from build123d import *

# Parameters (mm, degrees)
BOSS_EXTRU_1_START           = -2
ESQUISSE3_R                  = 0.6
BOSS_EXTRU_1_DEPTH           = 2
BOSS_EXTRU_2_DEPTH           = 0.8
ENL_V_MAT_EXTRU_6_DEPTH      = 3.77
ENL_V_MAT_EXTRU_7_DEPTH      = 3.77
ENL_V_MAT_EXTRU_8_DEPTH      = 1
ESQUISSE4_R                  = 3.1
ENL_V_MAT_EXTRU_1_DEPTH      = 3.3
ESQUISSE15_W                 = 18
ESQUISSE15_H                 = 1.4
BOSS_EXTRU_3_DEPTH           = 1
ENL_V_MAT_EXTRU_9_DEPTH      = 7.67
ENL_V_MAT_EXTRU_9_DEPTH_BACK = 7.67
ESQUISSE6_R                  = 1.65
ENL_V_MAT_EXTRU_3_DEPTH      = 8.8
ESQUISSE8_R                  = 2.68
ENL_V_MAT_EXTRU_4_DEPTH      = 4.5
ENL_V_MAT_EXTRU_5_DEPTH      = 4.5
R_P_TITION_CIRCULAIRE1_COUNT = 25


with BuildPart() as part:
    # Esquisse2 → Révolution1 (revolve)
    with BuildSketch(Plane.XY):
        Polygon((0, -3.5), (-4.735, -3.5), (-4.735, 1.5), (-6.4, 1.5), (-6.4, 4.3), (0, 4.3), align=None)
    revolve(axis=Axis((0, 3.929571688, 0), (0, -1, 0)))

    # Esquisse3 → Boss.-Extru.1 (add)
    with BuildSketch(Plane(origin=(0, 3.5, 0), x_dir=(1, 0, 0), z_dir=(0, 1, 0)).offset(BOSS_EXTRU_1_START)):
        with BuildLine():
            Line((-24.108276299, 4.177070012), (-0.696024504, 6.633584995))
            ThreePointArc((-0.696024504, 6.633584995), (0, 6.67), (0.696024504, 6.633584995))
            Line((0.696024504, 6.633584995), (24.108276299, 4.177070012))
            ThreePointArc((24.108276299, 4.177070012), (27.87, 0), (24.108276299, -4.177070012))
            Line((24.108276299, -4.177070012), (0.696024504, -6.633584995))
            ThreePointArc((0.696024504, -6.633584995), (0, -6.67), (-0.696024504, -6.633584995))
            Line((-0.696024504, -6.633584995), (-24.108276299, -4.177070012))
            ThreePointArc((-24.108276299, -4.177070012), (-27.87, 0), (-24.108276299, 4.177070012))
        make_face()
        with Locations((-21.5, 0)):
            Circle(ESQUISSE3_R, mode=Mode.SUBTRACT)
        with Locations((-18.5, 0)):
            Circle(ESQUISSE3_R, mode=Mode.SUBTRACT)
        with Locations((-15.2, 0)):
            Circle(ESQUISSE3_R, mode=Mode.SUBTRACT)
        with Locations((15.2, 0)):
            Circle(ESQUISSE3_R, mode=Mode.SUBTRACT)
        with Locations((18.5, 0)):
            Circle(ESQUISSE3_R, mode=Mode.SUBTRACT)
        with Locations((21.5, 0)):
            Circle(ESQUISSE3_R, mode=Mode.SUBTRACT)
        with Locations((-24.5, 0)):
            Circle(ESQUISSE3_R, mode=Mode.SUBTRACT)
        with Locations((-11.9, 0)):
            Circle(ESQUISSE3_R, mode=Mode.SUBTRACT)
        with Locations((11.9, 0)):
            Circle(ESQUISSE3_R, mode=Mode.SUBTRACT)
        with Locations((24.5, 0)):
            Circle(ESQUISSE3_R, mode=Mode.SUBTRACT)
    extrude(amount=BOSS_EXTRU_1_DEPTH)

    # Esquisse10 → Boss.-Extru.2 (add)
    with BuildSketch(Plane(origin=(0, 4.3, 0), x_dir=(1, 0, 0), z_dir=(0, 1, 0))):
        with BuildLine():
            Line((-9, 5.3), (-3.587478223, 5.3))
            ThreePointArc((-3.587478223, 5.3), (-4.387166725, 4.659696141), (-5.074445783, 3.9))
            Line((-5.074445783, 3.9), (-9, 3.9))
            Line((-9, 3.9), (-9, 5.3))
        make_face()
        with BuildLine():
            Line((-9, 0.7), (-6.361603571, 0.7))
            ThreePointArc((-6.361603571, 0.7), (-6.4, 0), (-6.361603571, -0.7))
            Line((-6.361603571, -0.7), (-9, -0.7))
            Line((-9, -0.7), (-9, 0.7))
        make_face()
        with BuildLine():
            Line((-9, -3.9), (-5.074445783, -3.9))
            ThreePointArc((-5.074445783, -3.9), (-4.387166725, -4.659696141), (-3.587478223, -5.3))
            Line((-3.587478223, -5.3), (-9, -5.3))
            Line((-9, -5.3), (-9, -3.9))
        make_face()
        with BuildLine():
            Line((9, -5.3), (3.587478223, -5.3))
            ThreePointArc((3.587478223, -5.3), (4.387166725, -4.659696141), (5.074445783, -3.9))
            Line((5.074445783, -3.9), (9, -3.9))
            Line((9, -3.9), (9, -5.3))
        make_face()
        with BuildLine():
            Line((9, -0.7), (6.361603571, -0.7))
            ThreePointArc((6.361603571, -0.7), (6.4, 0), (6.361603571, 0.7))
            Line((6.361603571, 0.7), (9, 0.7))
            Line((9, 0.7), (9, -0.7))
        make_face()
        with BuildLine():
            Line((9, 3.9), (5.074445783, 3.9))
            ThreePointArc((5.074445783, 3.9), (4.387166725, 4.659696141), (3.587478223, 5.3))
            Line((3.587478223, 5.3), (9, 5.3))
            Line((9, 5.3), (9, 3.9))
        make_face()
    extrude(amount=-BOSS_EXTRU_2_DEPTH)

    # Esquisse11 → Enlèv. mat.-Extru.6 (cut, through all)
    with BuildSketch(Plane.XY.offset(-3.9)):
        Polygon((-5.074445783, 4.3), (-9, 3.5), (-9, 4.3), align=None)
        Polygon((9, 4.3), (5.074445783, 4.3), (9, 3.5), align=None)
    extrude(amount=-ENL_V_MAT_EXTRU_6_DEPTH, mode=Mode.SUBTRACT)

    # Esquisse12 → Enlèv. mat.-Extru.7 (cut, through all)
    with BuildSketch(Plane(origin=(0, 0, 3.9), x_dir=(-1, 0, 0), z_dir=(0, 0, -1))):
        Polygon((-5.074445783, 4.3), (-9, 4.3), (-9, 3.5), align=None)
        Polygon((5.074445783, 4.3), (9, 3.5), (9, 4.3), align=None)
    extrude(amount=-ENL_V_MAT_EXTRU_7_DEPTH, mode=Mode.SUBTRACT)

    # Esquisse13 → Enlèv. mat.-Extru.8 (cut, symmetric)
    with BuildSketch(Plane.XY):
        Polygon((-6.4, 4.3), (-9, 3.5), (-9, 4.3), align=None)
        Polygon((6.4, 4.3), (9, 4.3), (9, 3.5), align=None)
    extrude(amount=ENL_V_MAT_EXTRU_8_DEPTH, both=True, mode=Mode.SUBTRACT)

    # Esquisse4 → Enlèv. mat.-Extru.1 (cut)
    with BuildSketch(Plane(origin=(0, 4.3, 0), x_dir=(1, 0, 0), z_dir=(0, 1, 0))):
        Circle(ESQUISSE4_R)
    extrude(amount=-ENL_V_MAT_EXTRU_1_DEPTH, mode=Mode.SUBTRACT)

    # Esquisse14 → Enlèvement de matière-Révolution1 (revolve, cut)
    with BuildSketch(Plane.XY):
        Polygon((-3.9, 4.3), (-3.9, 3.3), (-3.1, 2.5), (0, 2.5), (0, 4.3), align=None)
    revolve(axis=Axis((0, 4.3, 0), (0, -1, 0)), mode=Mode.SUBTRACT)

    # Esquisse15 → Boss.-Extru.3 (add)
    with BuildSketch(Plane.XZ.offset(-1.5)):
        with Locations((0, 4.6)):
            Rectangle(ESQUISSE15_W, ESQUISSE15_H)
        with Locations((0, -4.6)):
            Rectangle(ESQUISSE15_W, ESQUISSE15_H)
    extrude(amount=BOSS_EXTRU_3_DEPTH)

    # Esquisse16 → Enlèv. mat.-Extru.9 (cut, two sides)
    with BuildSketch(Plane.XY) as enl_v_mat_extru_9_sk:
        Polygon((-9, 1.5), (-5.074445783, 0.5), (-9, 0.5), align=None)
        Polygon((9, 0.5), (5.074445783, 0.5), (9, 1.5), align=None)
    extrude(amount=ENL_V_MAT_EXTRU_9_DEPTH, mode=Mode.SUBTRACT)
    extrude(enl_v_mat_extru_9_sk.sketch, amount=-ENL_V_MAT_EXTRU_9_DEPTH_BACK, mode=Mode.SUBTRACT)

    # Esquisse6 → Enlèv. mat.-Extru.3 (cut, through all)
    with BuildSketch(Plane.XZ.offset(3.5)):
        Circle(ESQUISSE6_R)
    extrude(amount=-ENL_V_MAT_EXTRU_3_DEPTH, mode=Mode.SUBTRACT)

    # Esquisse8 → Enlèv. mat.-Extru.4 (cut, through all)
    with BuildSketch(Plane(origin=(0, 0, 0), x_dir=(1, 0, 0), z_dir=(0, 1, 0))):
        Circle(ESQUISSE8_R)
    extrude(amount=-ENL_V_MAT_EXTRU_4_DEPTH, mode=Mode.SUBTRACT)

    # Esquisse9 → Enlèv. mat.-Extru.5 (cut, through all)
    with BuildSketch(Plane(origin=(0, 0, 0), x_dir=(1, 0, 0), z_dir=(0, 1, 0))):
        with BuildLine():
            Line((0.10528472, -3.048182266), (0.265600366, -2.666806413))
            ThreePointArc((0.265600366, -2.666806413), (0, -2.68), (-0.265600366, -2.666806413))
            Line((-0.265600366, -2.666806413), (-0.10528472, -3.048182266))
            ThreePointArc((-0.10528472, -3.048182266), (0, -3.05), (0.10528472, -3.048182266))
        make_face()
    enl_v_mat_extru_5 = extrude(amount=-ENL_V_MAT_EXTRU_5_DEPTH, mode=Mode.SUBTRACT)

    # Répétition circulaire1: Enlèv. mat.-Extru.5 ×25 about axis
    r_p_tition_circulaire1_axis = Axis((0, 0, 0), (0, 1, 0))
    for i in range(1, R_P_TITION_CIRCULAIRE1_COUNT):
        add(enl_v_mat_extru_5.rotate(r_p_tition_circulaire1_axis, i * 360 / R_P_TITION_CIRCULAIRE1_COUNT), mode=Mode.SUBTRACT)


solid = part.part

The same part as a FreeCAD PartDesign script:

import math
import FreeCAD as App
import Part
import Sketcher
Q = App.Units.Quantity

doc = App.newDocument("Part")
body = doc.addObject("PartDesign::Body", "Body")

sketch1 = doc.addObject("Sketcher::SketchObject", "Sketch")
body.addObject(sketch1)
sketch1.AttachmentSupport = (doc.XY_Plane, [""])
sketch1.MapMode = "FlatFace"
sketch1.addGeometry([
    Part.LineSegment(App.Vector(-4.7, -3.5, 0), App.Vector(0, -3.5, 0)),
    Part.LineSegment(App.Vector(0, -3.5, 0), App.Vector(0, 4.3, 0)),
    Part.LineSegment(App.Vector(0, 4.3, 0), App.Vector(-6.4, 4.3, 0)),
    Part.LineSegment(App.Vector(-6.4, 4.3, 0), App.Vector(-6.4, 1.5, 0)),
    Part.LineSegment(App.Vector(-6.4, 1.5, 0), App.Vector(-4.7, 1.5, 0)),
    Part.LineSegment(App.Vector(-4.7, 1.5, 0), App.Vector(-4.7, -3.5, 0)),
], False)
sketch1.addConstraint([
    Sketcher.Constraint("Coincident", 0, 2, 1, 1),
    Sketcher.Constraint("Coincident", 1, 2, 2, 1),
    Sketcher.Constraint("Coincident", 2, 2, 3, 1),
    Sketcher.Constraint("Coincident", 3, 2, 4, 1),
    Sketcher.Constraint("Coincident", 4, 2, 5, 1),
    Sketcher.Constraint("Coincident", 5, 2, 0, 1),
    Sketcher.Constraint("Horizontal", 0),
    Sketcher.Constraint("Vertical", 1),
    Sketcher.Constraint("Horizontal", 2),
    Sketcher.Constraint("Vertical", 3),
    Sketcher.Constraint("Horizontal", 4),
    Sketcher.Constraint("Vertical", 5),
    Sketcher.Constraint("PointOnObject", 0, 2, -2),
    Sketcher.Constraint("DistanceY", 5, 2, 5, 1, 5.0),
    Sketcher.Constraint("DistanceX", 2, 2, 2, 1, 6.4),
    Sketcher.Constraint("DistanceY", 1, 1, 1, 2, 7.8),
    Sketcher.Constraint("DistanceY", 0, 2, -1, 1, 3.5),
    Sketcher.Constraint("DistanceX", 0, 1, 0, 2, 4.735),
])
revolution = doc.addObject("PartDesign::Revolution", "Revolution")
body.addObject(revolution)
revolution.Profile = sketch1
revolution.ReferenceAxis = (sketch1, ["V_Axis"])
revolution.Angle = 360

sketch2 = doc.addObject("Sketcher::SketchObject", "Sketch001")
body.addObject(sketch2)
sketch2.AttachmentSupport = (doc.XZ_Plane, [""])
sketch2.MapMode = "FlatFace"
sketch2.AttachmentOffset = App.Placement(App.Vector(0, 0, -1.5), App.Rotation())
sketch2.addGeometry([
    Part.LineSegment(App.Vector(-0.7, -6.6, 0), App.Vector(-24.1, -4.2, 0)),
    Part.ArcOfCircle(Part.Circle(App.Vector(-23.7, 0, 0), App.Vector(0, 0, 1), 4.2), math.radians(96), math.radians(264)),
    Part.LineSegment(App.Vector(-24.1, 4.2, 0), App.Vector(-0.7, 6.6, 0)),
    Part.ArcOfCircle(Part.Circle(App.Vector(0, 0, 0), App.Vector(0, 0, 1), 6.7), math.radians(84.01), math.radians(95.99)),
    Part.LineSegment(App.Vector(0.7, 6.6, 0), App.Vector(24.1, 4.2, 0)),
    Part.ArcOfCircle(Part.Circle(App.Vector(23.7, 0, 0), App.Vector(0, 0, 1), 4.2), math.radians(-84), math.radians(84)),
    Part.LineSegment(App.Vector(24.1, -4.2, 0), App.Vector(0.7, -6.6, 0)),
    Part.ArcOfCircle(Part.Circle(App.Vector(0, 0, 0), App.Vector(0, 0, 1), 6.7), math.radians(-95.99), math.radians(-84.01)),
    Part.Circle(App.Vector(24.5, 0, 0), App.Vector(0, 0, 1), 0.6),
    Part.Circle(App.Vector(21.5, 0, 0), App.Vector(0, 0, 1), 0.6),
    Part.Circle(App.Vector(18.5, 0, 0), App.Vector(0, 0, 1), 0.6),
    Part.Circle(App.Vector(15.2, 0, 0), App.Vector(0, 0, 1), 0.6),
    Part.Circle(App.Vector(11.9, 0, 0), App.Vector(0, 0, 1), 0.6),
    Part.Circle(App.Vector(-11.9, 0, 0), App.Vector(0, 0, 1), 0.6),
    Part.Circle(App.Vector(-15.2, 0, 0), App.Vector(0, 0, 1), 0.6),
    Part.Circle(App.Vector(-18.5, 0, 0), App.Vector(0, 0, 1), 0.6),
    Part.Circle(App.Vector(-21.5, 0, 0), App.Vector(0, 0, 1), 0.6),
    Part.Circle(App.Vector(-24.5, 0, 0), App.Vector(0, 0, 1), 0.6),
], False)
sketch2.addConstraint([
    Sketcher.Constraint("Tangent", 0, 2, 1, 2),
    Sketcher.Constraint("Tangent", 1, 1, 2, 1),
    Sketcher.Constraint("Tangent", 2, 2, 3, 2),
    Sketcher.Constraint("Tangent", 3, 1, 4, 1),
    Sketcher.Constraint("Tangent", 4, 2, 5, 2),
    Sketcher.Constraint("Tangent", 5, 1, 6, 1),
    Sketcher.Constraint("Tangent", 6, 2, 7, 2),
    Sketcher.Constraint("Tangent", 7, 1, 0, 1),
    Sketcher.Constraint("Coincident", 3, 3, -1, 1),
    Sketcher.Constraint("Coincident", 7, 3, -1, 1),
    Sketcher.Constraint("Equal", 1, 5),
    Sketcher.Constraint("Equal", 3, 7),
    Sketcher.Constraint("Equal", 8, 9),
    Sketcher.Constraint("Equal", 9, 10),
    Sketcher.Constraint("Equal", 10, 11),
    Sketcher.Constraint("Equal", 11, 12),
    Sketcher.Constraint("Equal", 12, 13),
    Sketcher.Constraint("Equal", 13, 14),
    Sketcher.Constraint("Equal", 14, 15),
    Sketcher.Constraint("Equal", 15, 16),
    Sketcher.Constraint("Equal", 16, 17),
    Sketcher.Constraint("Symmetric", 1, 3, 5, 3, -1, 1),
    Sketcher.Constraint("Symmetric", 12, 3, 13, 3, -1, 1),
    Sketcher.Constraint("Symmetric", 11, 3, 14, 3, -1, 1),
    Sketcher.Constraint("Symmetric", 10, 3, 15, 3, -1, 1),
    Sketcher.Constraint("Symmetric", 9, 3, 16, 3, -1, 1),
    Sketcher.Constraint("Symmetric", 8, 3, 17, 3, -1, 1),
    Sketcher.Constraint("PointOnObject", 1, 3, -1),
    Sketcher.Constraint("PointOnObject", 8, 3, -1),
    Sketcher.Constraint("PointOnObject", 9, 3, -1),
    Sketcher.Constraint("PointOnObject", 10, 3, -1),
    Sketcher.Constraint("PointOnObject", 11, 3, -1),
    Sketcher.Constraint("PointOnObject", 12, 3, -1),
    Sketcher.Constraint("Diameter", 8, 1.2),
    Sketcher.Constraint("Radius", 1, 4.2),
    Sketcher.Constraint("Radius", 3, 6.67),
    Sketcher.Constraint("DistanceX", 9, 3, 8, 3, 3.0),
    Sketcher.Constraint("DistanceX", 10, 3, 9, 3, 3.0),
    Sketcher.Constraint("DistanceX", -1, 1, 8, 3, 24.5),
    Sketcher.Constraint("DistanceX", -1, 1, 11, 3, 15.2),
    Sketcher.Constraint("DistanceX", -1, 1, 12, 3, 11.9),
    Sketcher.Constraint("DistanceX", 1, 3, -1, 1, 23.67),
])
pad1 = doc.addObject("PartDesign::Pad", "Pad")
body.addObject(pad1)
pad1.Profile = sketch2
pad1.Length = 2
pad1.Reversed = True

sketch3 = doc.addObject("Sketcher::SketchObject", "Sketch002")
body.addObject(sketch3)
sketch3.AttachmentSupport = (doc.XZ_Plane, [""])
sketch3.MapMode = "FlatFace"
sketch3.AttachmentOffset = App.Placement(App.Vector(0, 0, -4.3), App.Rotation())
sketch3.addGeometry([
    Part.LineSegment(App.Vector(-3.6, -5.3, 0), App.Vector(-9, -5.3, 0)),
    Part.LineSegment(App.Vector(-9, -5.3, 0), App.Vector(-9, -3.9, 0)),
    Part.LineSegment(App.Vector(-9, -3.9, 0), App.Vector(-5.1, -3.9, 0)),
    Part.ArcOfCircle(Part.Circle(App.Vector(0, 0, 0), App.Vector(0, 0, 1), 6.4), math.radians(-142.46), math.radians(-124.09)),
    Part.LineSegment(App.Vector(-6.4, -0.7, 0), App.Vector(-9, -0.7, 0)),
    Part.LineSegment(App.Vector(-9, -0.7, 0), App.Vector(-9, 0.7, 0)),
    Part.LineSegment(App.Vector(-9, 0.7, 0), App.Vector(-6.4, 0.7, 0)),
    Part.ArcOfCircle(Part.Circle(App.Vector(0, 0, 0), App.Vector(0, 0, 1), 6.4), math.radians(173.72), math.radians(186.28)),
    Part.LineSegment(App.Vector(-5.1, 3.9, 0), App.Vector(-9, 3.9, 0)),
    Part.LineSegment(App.Vector(-9, 3.9, 0), App.Vector(-9, 5.3, 0)),
    Part.LineSegment(App.Vector(-9, 5.3, 0), App.Vector(-3.6, 5.3, 0)),
    Part.ArcOfCircle(Part.Circle(App.Vector(0, 0, 0), App.Vector(0, 0, 1), 6.4), math.radians(124.09), math.radians(142.46)),
    Part.LineSegment(App.Vector(3.6, 5.3, 0), App.Vector(9, 5.3, 0)),
    Part.LineSegment(App.Vector(9, 5.3, 0), App.Vector(9, 3.9, 0)),
    Part.LineSegment(App.Vector(9, 3.9, 0), App.Vector(5.1, 3.9, 0)),
    Part.ArcOfCircle(Part.Circle(App.Vector(0, 0, 0), App.Vector(0, 0, 1), 6.4), math.radians(37.54), math.radians(55.91)),
    Part.LineSegment(App.Vector(6.4, 0.7, 0), App.Vector(9, 0.7, 0)),
    Part.LineSegment(App.Vector(9, 0.7, 0), App.Vector(9, -0.7, 0)),
    Part.LineSegment(App.Vector(9, -0.7, 0), App.Vector(6.4, -0.7, 0)),
    Part.ArcOfCircle(Part.Circle(App.Vector(0, 0, 0), App.Vector(0, 0, 1), 6.4), math.radians(-6.28), math.radians(6.28)),
    Part.LineSegment(App.Vector(5.1, -3.9, 0), App.Vector(9, -3.9, 0)),
    Part.LineSegment(App.Vector(9, -3.9, 0), App.Vector(9, -5.3, 0)),
    Part.LineSegment(App.Vector(9, -5.3, 0), App.Vector(3.6, -5.3, 0)),
    Part.ArcOfCircle(Part.Circle(App.Vector(0, 0, 0), App.Vector(0, 0, 1), 6.4), math.radians(-55.91), math.radians(-37.54)),
], False)
sketch3.addConstraint([
    Sketcher.Constraint("Coincident", 0, 2, 1, 1),
    Sketcher.Constraint("Coincident", 1, 2, 2, 1),
    Sketcher.Constraint("Coincident", 2, 2, 3, 1),
    Sketcher.Constraint("Coincident", 3, 2, 0, 1),
    Sketcher.Constraint("Coincident", 4, 2, 5, 1),
    Sketcher.Constraint("Coincident", 5, 2, 6, 1),
    Sketcher.Constraint("Coincident", 6, 2, 7, 1),
    Sketcher.Constraint("Coincident", 7, 2, 4, 1),
    Sketcher.Constraint("Coincident", 8, 2, 9, 1),
    Sketcher.Constraint("Coincident", 9, 2, 10, 1),
    Sketcher.Constraint("Coincident", 10, 2, 11, 1),
    Sketcher.Constraint("Coincident", 11, 2, 8, 1),
    Sketcher.Constraint("Coincident", 12, 2, 13, 1),
    Sketcher.Constraint("Coincident", 13, 2, 14, 1),
    Sketcher.Constraint("Coincident", 14, 2, 15, 1),
    Sketcher.Constraint("Coincident", 15, 2, 12, 1),
    Sketcher.Constraint("Coincident", 16, 2, 17, 1),
    Sketcher.Constraint("Coincident", 17, 2, 18, 1),
    Sketcher.Constraint("Coincident", 18, 2, 19, 1),
    Sketcher.Constraint("Coincident", 19, 2, 16, 1),
    Sketcher.Constraint("Coincident", 20, 2, 21, 1),
    Sketcher.Constraint("Coincident", 21, 2, 22, 1),
    Sketcher.Constraint("Coincident", 22, 2, 23, 1),
    Sketcher.Constraint("Coincident", 23, 2, 20, 1),
    Sketcher.Constraint("Horizontal", 0),
    Sketcher.Constraint("Vertical", 1),
    Sketcher.Constraint("Horizontal", 2),
    Sketcher.Constraint("Horizontal", 4),
    Sketcher.Constraint("Vertical", 5),
    Sketcher.Constraint("Horizontal", 6),
    Sketcher.Constraint("Horizontal", 8),
    Sketcher.Constraint("Vertical", 9),
    Sketcher.Constraint("Horizontal", 10),
    Sketcher.Constraint("Horizontal", 12),
    Sketcher.Constraint("Vertical", 13),
    Sketcher.Constraint("Horizontal", 14),
    Sketcher.Constraint("Horizontal", 16),
    Sketcher.Constraint("Vertical", 17),
    Sketcher.Constraint("Horizontal", 18),
    Sketcher.Constraint("Horizontal", 20),
    Sketcher.Constraint("Vertical", 21),
    Sketcher.Constraint("Horizontal", 22),
    Sketcher.Constraint("Coincident", 3, 3, -1, 1),
    Sketcher.Constraint("Coincident", 7, 3, -1, 1),
    Sketcher.Constraint("Coincident", 11, 3, -1, 1),
    Sketcher.Constraint("Coincident", 15, 3, -1, 1),
    Sketcher.Constraint("Coincident", 19, 3, -1, 1),
    Sketcher.Constraint("Coincident", 23, 3, -1, 1),
    Sketcher.Constraint("Equal", 3, 7),
    Sketcher.Constraint("Equal", 7, 11),
    Sketcher.Constraint("Equal", 11, 15),
    Sketcher.Constraint("Equal", 15, 19),
    Sketcher.Constraint("Equal", 19, 23),
    Sketcher.Constraint("Symmetric", 0, 2, 12, 2, -1, 1),
    Sketcher.Constraint("Symmetric", 4, 2, 16, 2, -1, 1),
    Sketcher.Constraint("Symmetric", 8, 2, 20, 2, -1, 1),
    Sketcher.Constraint("Symmetric", 9, 2, 12, 2, -2),
    Sketcher.Constraint("Horizontal", 11, 2, 13, 2),
    Sketcher.Constraint("Horizontal", 6, 2, 16, 2),
    Sketcher.Constraint("Horizontal", 7, 2, 17, 2),
    Sketcher.Constraint("Horizontal", 2, 2, 20, 2),
    Sketcher.Constraint("Horizontal", 3, 2, 21, 2),
    Sketcher.Constraint("Vertical", 1, 2, 4, 2),
    Sketcher.Constraint("Equal", 1, 5),
    Sketcher.Constraint("Radius", 3, 6.4),
    Sketcher.Constraint("DistanceY", 1, 1, 1, 2, 1.4),
    Sketcher.Constraint("DistanceX", 0, 2, -1, 1, 9.0),
    Sketcher.Constraint("DistanceY", 0, 2, 5, 2, 6.0),
])
pad2 = doc.addObject("PartDesign::Pad", "Pad001")
body.addObject(pad2)
pad2.Profile = sketch3
pad2.Length = 0.8

sketch4 = doc.addObject("Sketcher::SketchObject", "Sketch003")
body.addObject(sketch4)
sketch4.AttachmentSupport = (doc.XY_Plane, [""])
sketch4.MapMode = "FlatFace"
sketch4.AttachmentOffset = App.Placement(App.Vector(0, 0, -3.9), App.Rotation())
sketch4.addGeometry([
    Part.LineSegment(App.Vector(-9, 3.5, 0), App.Vector(-5.1, 4.3, 0)),
    Part.LineSegment(App.Vector(-5.1, 4.3, 0), App.Vector(-9, 4.3, 0)),
    Part.LineSegment(App.Vector(-9, 4.3, 0), App.Vector(-9, 3.5, 0)),
    Part.LineSegment(App.Vector(9, 4.3, 0), App.Vector(5.1, 4.3, 0)),
    Part.LineSegment(App.Vector(5.1, 4.3, 0), App.Vector(9, 3.5, 0)),
    Part.LineSegment(App.Vector(9, 3.5, 0), App.Vector(9, 4.3, 0)),
], False)
sketch4.addConstraint([
    Sketcher.Constraint("Coincident", 0, 2, 1, 1),
    Sketcher.Constraint("Coincident", 1, 2, 2, 1),
    Sketcher.Constraint("Coincident", 2, 2, 0, 1),
    Sketcher.Constraint("Coincident", 3, 2, 4, 1),
    Sketcher.Constraint("Coincident", 4, 2, 5, 1),
    Sketcher.Constraint("Coincident", 5, 2, 3, 1),
    Sketcher.Constraint("Horizontal", 1),
    Sketcher.Constraint("Vertical", 2),
    Sketcher.Constraint("Horizontal", 3),
    Sketcher.Constraint("Vertical", 5),
    Sketcher.Constraint("Symmetric", 0, 2, 3, 2, -2),
    Sketcher.Constraint("Symmetric", 2, 2, 4, 2, -2),
    Sketcher.Constraint("DistanceY", 2, 2, 2, 1, 0.8),
    Sketcher.Constraint("DistanceX", 1, 2, -1, 1, 9.0),
    Sketcher.Constraint("DistanceY", -1, 1, 0, 2, 4.3),
    Sketcher.Constraint("DistanceX", 1, 2, 1, 1, 3.925554),
])
pocket1 = doc.addObject("PartDesign::Pocket", "Pocket")
body.addObject(pocket1)
pocket1.Profile = sketch4
pocket1.Type = "ThroughAll"

sketch5 = doc.addObject("Sketcher::SketchObject", "Sketch004")
body.addObject(sketch5)
sketch5.AttachmentSupport = (doc.XY_Plane, [""])
sketch5.MapMode = "FlatFace"
sketch5.AttachmentOffset = App.Placement(App.Vector(0, 0, 3.9), App.Rotation())
sketch5.addGeometry([
    Part.LineSegment(App.Vector(5.1, 4.3, 0), App.Vector(9, 4.3, 0)),
    Part.LineSegment(App.Vector(9, 4.3, 0), App.Vector(9, 3.5, 0)),
    Part.LineSegment(App.Vector(9, 3.5, 0), App.Vector(5.1, 4.3, 0)),
    Part.LineSegment(App.Vector(-5.1, 4.3, 0), App.Vector(-9, 3.5, 0)),
    Part.LineSegment(App.Vector(-9, 3.5, 0), App.Vector(-9, 4.3, 0)),
    Part.LineSegment(App.Vector(-9, 4.3, 0), App.Vector(-5.1, 4.3, 0)),
], False)
sketch5.addConstraint([
    Sketcher.Constraint("Coincident", 0, 2, 1, 1),
    Sketcher.Constraint("Coincident", 1, 2, 2, 1),
    Sketcher.Constraint("Coincident", 2, 2, 0, 1),
    Sketcher.Constraint("Coincident", 3, 2, 4, 1),
    Sketcher.Constraint("Coincident", 4, 2, 5, 1),
    Sketcher.Constraint("Coincident", 5, 2, 3, 1),
    Sketcher.Constraint("Horizontal", 0),
    Sketcher.Constraint("Vertical", 1),
    Sketcher.Constraint("Vertical", 4),
    Sketcher.Constraint("Horizontal", 5),
    Sketcher.Constraint("Symmetric", 1, 2, 3, 2, -2),
    Sketcher.Constraint("Symmetric", 2, 2, 5, 2, -2),
    Sketcher.Constraint("DistanceY", 1, 2, 1, 1, 0.8),
    Sketcher.Constraint("DistanceX", -1, 1, 0, 2, 9.0),
    Sketcher.Constraint("DistanceY", -1, 1, 0, 2, 4.3),
    Sketcher.Constraint("DistanceX", 0, 1, 0, 2, 3.925554),
])
pocket2 = doc.addObject("PartDesign::Pocket", "Pocket001")
body.addObject(pocket2)
pocket2.Profile = sketch5
pocket2.Type = "ThroughAll"
pocket2.Reversed = True

sketch6 = doc.addObject("Sketcher::SketchObject", "Sketch005")
body.addObject(sketch6)
sketch6.AttachmentSupport = (doc.XY_Plane, [""])
sketch6.MapMode = "FlatFace"
sketch6.addGeometry([
    Part.LineSegment(App.Vector(-9, 3.5, 0), App.Vector(-6.4, 4.3, 0)),
    Part.LineSegment(App.Vector(-6.4, 4.3, 0), App.Vector(-9, 4.3, 0)),
    Part.LineSegment(App.Vector(-9, 4.3, 0), App.Vector(-9, 3.5, 0)),
    Part.LineSegment(App.Vector(9, 4.3, 0), App.Vector(6.4, 4.3, 0)),
    Part.LineSegment(App.Vector(6.4, 4.3, 0), App.Vector(9, 3.5, 0)),
    Part.LineSegment(App.Vector(9, 3.5, 0), App.Vector(9, 4.3, 0)),
], False)
sketch6.addConstraint([
    Sketcher.Constraint("Coincident", 0, 2, 1, 1),
    Sketcher.Constraint("Coincident", 1, 2, 2, 1),
    Sketcher.Constraint("Coincident", 2, 2, 0, 1),
    Sketcher.Constraint("Coincident", 3, 2, 4, 1),
    Sketcher.Constraint("Coincident", 4, 2, 5, 1),
    Sketcher.Constraint("Coincident", 5, 2, 3, 1),
    Sketcher.Constraint("Horizontal", 1),
    Sketcher.Constraint("Vertical", 2),
    Sketcher.Constraint("Horizontal", 3),
    Sketcher.Constraint("Vertical", 5),
    Sketcher.Constraint("Symmetric", 0, 2, 3, 2, -2),
    Sketcher.Constraint("Symmetric", 2, 2, 4, 2, -2),
    Sketcher.Constraint("DistanceX", 1, 2, 1, 1, 2.6),
    Sketcher.Constraint("DistanceY", 2, 2, 2, 1, 0.8),
    Sketcher.Constraint("DistanceX", 1, 2, -1, 1, 9.0),
    Sketcher.Constraint("DistanceY", -1, 1, 0, 2, 4.3),
])
pocket3 = doc.addObject("PartDesign::Pocket", "Pocket002")
body.addObject(pocket3)
pocket3.Profile = sketch6
pocket3.Length = 2
pocket3.Midplane = True

sketch7 = doc.addObject("Sketcher::SketchObject", "Sketch006")
body.addObject(sketch7)
sketch7.AttachmentSupport = (doc.XZ_Plane, [""])
sketch7.MapMode = "FlatFace"
sketch7.AttachmentOffset = App.Placement(App.Vector(0, 0, -4.3), App.Rotation())
sketch7.addGeometry(Part.Circle(App.Vector(0, 0, 0), App.Vector(0, 0, 1), 3.1), False)
sketch7.addConstraint([
    Sketcher.Constraint("Coincident", 0, 3, -1, 1),
    Sketcher.Constraint("Diameter", 0, 6.2),
])
pocket4 = doc.addObject("PartDesign::Pocket", "Pocket003")
body.addObject(pocket4)
pocket4.Profile = sketch7
pocket4.Length = 3.3
pocket4.Reversed = True

sketch8 = doc.addObject("Sketcher::SketchObject", "Sketch007")
body.addObject(sketch8)
sketch8.AttachmentSupport = (doc.XY_Plane, [""])
sketch8.MapMode = "FlatFace"
sketch8.addGeometry([
    Part.LineSegment(App.Vector(-3.9, 4.3, 0), App.Vector(-3.9, 3.3, 0)),
    Part.LineSegment(App.Vector(-3.9, 3.3, 0), App.Vector(-3.1, 2.5, 0)),
    Part.LineSegment(App.Vector(-3.1, 2.5, 0), App.Vector(0, 2.5, 0)),
    Part.LineSegment(App.Vector(0, 2.5, 0), App.Vector(0, 4.3, 0)),
    Part.LineSegment(App.Vector(0, 4.3, 0), App.Vector(-3.9, 4.3, 0)),
], False)
sketch8.addConstraint([
    Sketcher.Constraint("Coincident", 0, 2, 1, 1),
    Sketcher.Constraint("Coincident", 1, 2, 2, 1),
    Sketcher.Constraint("Coincident", 2, 2, 3, 1),
    Sketcher.Constraint("Coincident", 3, 2, 4, 1),
    Sketcher.Constraint("Coincident", 4, 2, 0, 1),
    Sketcher.Constraint("Vertical", 0),
    Sketcher.Constraint("Horizontal", 2),
    Sketcher.Constraint("Vertical", 3),
    Sketcher.Constraint("Horizontal", 4),
    Sketcher.Constraint("PointOnObject", 2, 2, -2),
    Sketcher.Constraint("DistanceY", 0, 2, 0, 1, 1.0),
    Sketcher.Constraint("Angle", 1, Q("-45 deg")),
    Sketcher.Constraint("DistanceX", 2, 1, 2, 2, 3.1),
    Sketcher.Constraint("DistanceX", 4, 2, 4, 1, 3.9),
    Sketcher.Constraint("DistanceY", -1, 1, 0, 2, 3.3),
])
groove = doc.addObject("PartDesign::Groove", "Groove")
body.addObject(groove)
groove.Profile = sketch8
groove.ReferenceAxis = (sketch8, ["V_Axis"])
groove.Angle = 360

sketch9 = doc.addObject("Sketcher::SketchObject", "Sketch008")
body.addObject(sketch9)
sketch9.AttachmentSupport = (doc.XZ_Plane, [""])
sketch9.MapMode = "FlatFace"
sketch9.AttachmentOffset = App.Placement(App.Vector(0, 0, -1.5), App.Rotation())
sketch9.addGeometry([
    Part.LineSegment(App.Vector(-9, 5.3, 0), App.Vector(-9, 3.9, 0)),
    Part.LineSegment(App.Vector(-9, 3.9, 0), App.Vector(9, 3.9, 0)),
    Part.LineSegment(App.Vector(9, 3.9, 0), App.Vector(9, 5.3, 0)),
    Part.LineSegment(App.Vector(9, 5.3, 0), App.Vector(-9, 5.3, 0)),
    Part.LineSegment(App.Vector(-9, -3.9, 0), App.Vector(-9, -5.3, 0)),
    Part.LineSegment(App.Vector(-9, -5.3, 0), App.Vector(9, -5.3, 0)),
    Part.LineSegment(App.Vector(9, -5.3, 0), App.Vector(9, -3.9, 0)),
    Part.LineSegment(App.Vector(9, -3.9, 0), App.Vector(-9, -3.9, 0)),
], False)
sketch9.addConstraint([
    Sketcher.Constraint("Coincident", 0, 2, 1, 1),
    Sketcher.Constraint("Coincident", 1, 2, 2, 1),
    Sketcher.Constraint("Coincident", 2, 2, 3, 1),
    Sketcher.Constraint("Coincident", 3, 2, 0, 1),
    Sketcher.Constraint("Coincident", 4, 2, 5, 1),
    Sketcher.Constraint("Coincident", 5, 2, 6, 1),
    Sketcher.Constraint("Coincident", 6, 2, 7, 1),
    Sketcher.Constraint("Coincident", 7, 2, 4, 1),
    Sketcher.Constraint("Vertical", 0),
    Sketcher.Constraint("Horizontal", 1),
    Sketcher.Constraint("Vertical", 2),
    Sketcher.Constraint("Horizontal", 3),
    Sketcher.Constraint("Vertical", 4),
    Sketcher.Constraint("Horizontal", 5),
    Sketcher.Constraint("Vertical", 6),
    Sketcher.Constraint("Horizontal", 7),
    Sketcher.Constraint("Symmetric", 2, 2, 4, 2, -1, 1),
    Sketcher.Constraint("Symmetric", 0, 2, 6, 2, -1, 1),
    Sketcher.Constraint("Vertical", 3, 2, 4, 2),
    Sketcher.Constraint("DistanceX", 1, 1, 1, 2, 18.0),
    Sketcher.Constraint("DistanceY", 0, 2, 0, 1, 1.4),
    Sketcher.Constraint("DistanceY", -1, 1, 0, 2, 3.9),
])
pad3 = doc.addObject("PartDesign::Pad", "Pad002")
body.addObject(pad3)
pad3.Profile = sketch9
pad3.Length = 1

sketch10 = doc.addObject("Sketcher::SketchObject", "Sketch009")
body.addObject(sketch10)
sketch10.AttachmentSupport = (doc.XY_Plane, [""])
sketch10.MapMode = "FlatFace"
sketch10.addGeometry([
    Part.LineSegment(App.Vector(-5.1, 0.5, 0), App.Vector(-9, 1.5, 0)),
    Part.LineSegment(App.Vector(-9, 1.5, 0), App.Vector(-9, 0.5, 0)),
    Part.LineSegment(App.Vector(-9, 0.5, 0), App.Vector(-5.1, 0.5, 0)),
    Part.LineSegment(App.Vector(5.1, 0.5, 0), App.Vector(9, 0.5, 0)),
    Part.LineSegment(App.Vector(9, 0.5, 0), App.Vector(9, 1.5, 0)),
    Part.LineSegment(App.Vector(9, 1.5, 0), App.Vector(5.1, 0.5, 0)),
], False)
sketch10.addConstraint([
    Sketcher.Constraint("Coincident", 0, 2, 1, 1),
    Sketcher.Constraint("Coincident", 1, 2, 2, 1),
    Sketcher.Constraint("Coincident", 2, 2, 0, 1),
    Sketcher.Constraint("Coincident", 3, 2, 4, 1),
    Sketcher.Constraint("Coincident", 4, 2, 5, 1),
    Sketcher.Constraint("Coincident", 5, 2, 3, 1),
    Sketcher.Constraint("Vertical", 1),
    Sketcher.Constraint("Horizontal", 2),
    Sketcher.Constraint("Horizontal", 3),
    Sketcher.Constraint("Vertical", 4),
    Sketcher.Constraint("Symmetric", 1, 2, 3, 2, -2),
    Sketcher.Constraint("Horizontal", 0, 2, 4, 2),
    Sketcher.Constraint("Equal", 2, 3),
    Sketcher.Constraint("DistanceY", 1, 2, 1, 1, 1.0),
    Sketcher.Constraint("DistanceX", 0, 2, -1, 1, 9.0),
    Sketcher.Constraint("DistanceY", -1, 1, 0, 2, 1.5),
    Sketcher.Constraint("DistanceX", 2, 1, 2, 2, 3.925554),
])
pocket5 = doc.addObject("PartDesign::Pocket", "Pocket004")
body.addObject(pocket5)
pocket5.Profile = sketch10
pocket5.Type = "ThroughAll"
pocket5.Midplane = True

sketch11 = doc.addObject("Sketcher::SketchObject", "Sketch010")
body.addObject(sketch11)
sketch11.AttachmentSupport = (doc.XZ_Plane, [""])
sketch11.MapMode = "FlatFace"
sketch11.AttachmentOffset = App.Placement(App.Vector(0, 0, 3.5), App.Rotation())
sketch11.addGeometry(Part.Circle(App.Vector(0, 0, 0), App.Vector(0, 0, 1), 1.6), False)
sketch11.addConstraint([
    Sketcher.Constraint("Coincident", 0, 3, -1, 1),
    Sketcher.Constraint("Diameter", 0, 3.3),
])
pocket6 = doc.addObject("PartDesign::Pocket", "Pocket005")
body.addObject(pocket6)
pocket6.Profile = sketch11
pocket6.Type = "ThroughAll"

sketch12 = doc.addObject("Sketcher::SketchObject", "Sketch011")
body.addObject(sketch12)
sketch12.AttachmentSupport = (doc.XZ_Plane, [""])
sketch12.MapMode = "FlatFace"
sketch12.addGeometry(Part.Circle(App.Vector(0, 0, 0), App.Vector(0, 0, 1), 2.7), False)
sketch12.addConstraint([
    Sketcher.Constraint("Coincident", 0, 3, -1, 1),
    Sketcher.Constraint("Diameter", 0, 5.36),
])
pocket7 = doc.addObject("PartDesign::Pocket", "Pocket006")
body.addObject(pocket7)
pocket7.Profile = sketch12
pocket7.Type = "ThroughAll"
pocket7.Reversed = True

sketch13 = doc.addObject("Sketcher::SketchObject", "Sketch012")
body.addObject(sketch13)
sketch13.AttachmentSupport = (doc.XZ_Plane, [""])
sketch13.MapMode = "FlatFace"
sketch13.addGeometry([
    Part.LineSegment(App.Vector(0.11, 3.05, 0), App.Vector(0.27, 2.67, 0)),
    Part.ArcOfCircle(Part.Circle(App.Vector(0, 0, 0), App.Vector(0, 0, 1), 2.68), math.radians(84.31), math.radians(95.69)),
    Part.LineSegment(App.Vector(-0.27, 2.67, 0), App.Vector(-0.11, 3.05, 0)),
    Part.ArcOfCircle(Part.Circle(App.Vector(0, 0, 0), App.Vector(0, 0, 1), 3.05), math.radians(88.02), math.radians(91.98)),
], False)
sketch13.addConstraint([
    Sketcher.Constraint("Coincident", 0, 2, 1, 1),
    Sketcher.Constraint("Coincident", 1, 2, 2, 1),
    Sketcher.Constraint("Coincident", 2, 2, 3, 2),
    Sketcher.Constraint("Coincident", 3, 1, 0, 1),
    Sketcher.Constraint("Coincident", 1, 3, -1, 1),
    Sketcher.Constraint("Coincident", 3, 3, -1, 1),
    Sketcher.Constraint("Horizontal", 0, 2, 1, 2),
    Sketcher.Constraint("Horizontal", 2, 2, 3, 1),
    Sketcher.Constraint("Radius", 1, 2.68),
    Sketcher.Constraint("Radius", 3, 3.05),
    Sketcher.Constraint("Angle", 0, Q("-67.2 deg")),
    Sketcher.Constraint("Distance", 0, 0.413701),
])
pocket8 = doc.addObject("PartDesign::Pocket", "Pocket007")
body.addObject(pocket8)
pocket8.Profile = sketch13
pocket8.Type = "ThroughAll"
pocket8.Reversed = True
doc.recompute()

polarpattern = doc.addObject("PartDesign::PolarPattern", "PolarPattern")
body.addObject(polarpattern)
polarpattern.Originals = [pocket8]
polarpattern.Axis = (doc.Y_Axis, [""])
polarpattern.Angle = 360
polarpattern.Occurrences = 25
body.Tip = polarpattern

doc.recompute()
